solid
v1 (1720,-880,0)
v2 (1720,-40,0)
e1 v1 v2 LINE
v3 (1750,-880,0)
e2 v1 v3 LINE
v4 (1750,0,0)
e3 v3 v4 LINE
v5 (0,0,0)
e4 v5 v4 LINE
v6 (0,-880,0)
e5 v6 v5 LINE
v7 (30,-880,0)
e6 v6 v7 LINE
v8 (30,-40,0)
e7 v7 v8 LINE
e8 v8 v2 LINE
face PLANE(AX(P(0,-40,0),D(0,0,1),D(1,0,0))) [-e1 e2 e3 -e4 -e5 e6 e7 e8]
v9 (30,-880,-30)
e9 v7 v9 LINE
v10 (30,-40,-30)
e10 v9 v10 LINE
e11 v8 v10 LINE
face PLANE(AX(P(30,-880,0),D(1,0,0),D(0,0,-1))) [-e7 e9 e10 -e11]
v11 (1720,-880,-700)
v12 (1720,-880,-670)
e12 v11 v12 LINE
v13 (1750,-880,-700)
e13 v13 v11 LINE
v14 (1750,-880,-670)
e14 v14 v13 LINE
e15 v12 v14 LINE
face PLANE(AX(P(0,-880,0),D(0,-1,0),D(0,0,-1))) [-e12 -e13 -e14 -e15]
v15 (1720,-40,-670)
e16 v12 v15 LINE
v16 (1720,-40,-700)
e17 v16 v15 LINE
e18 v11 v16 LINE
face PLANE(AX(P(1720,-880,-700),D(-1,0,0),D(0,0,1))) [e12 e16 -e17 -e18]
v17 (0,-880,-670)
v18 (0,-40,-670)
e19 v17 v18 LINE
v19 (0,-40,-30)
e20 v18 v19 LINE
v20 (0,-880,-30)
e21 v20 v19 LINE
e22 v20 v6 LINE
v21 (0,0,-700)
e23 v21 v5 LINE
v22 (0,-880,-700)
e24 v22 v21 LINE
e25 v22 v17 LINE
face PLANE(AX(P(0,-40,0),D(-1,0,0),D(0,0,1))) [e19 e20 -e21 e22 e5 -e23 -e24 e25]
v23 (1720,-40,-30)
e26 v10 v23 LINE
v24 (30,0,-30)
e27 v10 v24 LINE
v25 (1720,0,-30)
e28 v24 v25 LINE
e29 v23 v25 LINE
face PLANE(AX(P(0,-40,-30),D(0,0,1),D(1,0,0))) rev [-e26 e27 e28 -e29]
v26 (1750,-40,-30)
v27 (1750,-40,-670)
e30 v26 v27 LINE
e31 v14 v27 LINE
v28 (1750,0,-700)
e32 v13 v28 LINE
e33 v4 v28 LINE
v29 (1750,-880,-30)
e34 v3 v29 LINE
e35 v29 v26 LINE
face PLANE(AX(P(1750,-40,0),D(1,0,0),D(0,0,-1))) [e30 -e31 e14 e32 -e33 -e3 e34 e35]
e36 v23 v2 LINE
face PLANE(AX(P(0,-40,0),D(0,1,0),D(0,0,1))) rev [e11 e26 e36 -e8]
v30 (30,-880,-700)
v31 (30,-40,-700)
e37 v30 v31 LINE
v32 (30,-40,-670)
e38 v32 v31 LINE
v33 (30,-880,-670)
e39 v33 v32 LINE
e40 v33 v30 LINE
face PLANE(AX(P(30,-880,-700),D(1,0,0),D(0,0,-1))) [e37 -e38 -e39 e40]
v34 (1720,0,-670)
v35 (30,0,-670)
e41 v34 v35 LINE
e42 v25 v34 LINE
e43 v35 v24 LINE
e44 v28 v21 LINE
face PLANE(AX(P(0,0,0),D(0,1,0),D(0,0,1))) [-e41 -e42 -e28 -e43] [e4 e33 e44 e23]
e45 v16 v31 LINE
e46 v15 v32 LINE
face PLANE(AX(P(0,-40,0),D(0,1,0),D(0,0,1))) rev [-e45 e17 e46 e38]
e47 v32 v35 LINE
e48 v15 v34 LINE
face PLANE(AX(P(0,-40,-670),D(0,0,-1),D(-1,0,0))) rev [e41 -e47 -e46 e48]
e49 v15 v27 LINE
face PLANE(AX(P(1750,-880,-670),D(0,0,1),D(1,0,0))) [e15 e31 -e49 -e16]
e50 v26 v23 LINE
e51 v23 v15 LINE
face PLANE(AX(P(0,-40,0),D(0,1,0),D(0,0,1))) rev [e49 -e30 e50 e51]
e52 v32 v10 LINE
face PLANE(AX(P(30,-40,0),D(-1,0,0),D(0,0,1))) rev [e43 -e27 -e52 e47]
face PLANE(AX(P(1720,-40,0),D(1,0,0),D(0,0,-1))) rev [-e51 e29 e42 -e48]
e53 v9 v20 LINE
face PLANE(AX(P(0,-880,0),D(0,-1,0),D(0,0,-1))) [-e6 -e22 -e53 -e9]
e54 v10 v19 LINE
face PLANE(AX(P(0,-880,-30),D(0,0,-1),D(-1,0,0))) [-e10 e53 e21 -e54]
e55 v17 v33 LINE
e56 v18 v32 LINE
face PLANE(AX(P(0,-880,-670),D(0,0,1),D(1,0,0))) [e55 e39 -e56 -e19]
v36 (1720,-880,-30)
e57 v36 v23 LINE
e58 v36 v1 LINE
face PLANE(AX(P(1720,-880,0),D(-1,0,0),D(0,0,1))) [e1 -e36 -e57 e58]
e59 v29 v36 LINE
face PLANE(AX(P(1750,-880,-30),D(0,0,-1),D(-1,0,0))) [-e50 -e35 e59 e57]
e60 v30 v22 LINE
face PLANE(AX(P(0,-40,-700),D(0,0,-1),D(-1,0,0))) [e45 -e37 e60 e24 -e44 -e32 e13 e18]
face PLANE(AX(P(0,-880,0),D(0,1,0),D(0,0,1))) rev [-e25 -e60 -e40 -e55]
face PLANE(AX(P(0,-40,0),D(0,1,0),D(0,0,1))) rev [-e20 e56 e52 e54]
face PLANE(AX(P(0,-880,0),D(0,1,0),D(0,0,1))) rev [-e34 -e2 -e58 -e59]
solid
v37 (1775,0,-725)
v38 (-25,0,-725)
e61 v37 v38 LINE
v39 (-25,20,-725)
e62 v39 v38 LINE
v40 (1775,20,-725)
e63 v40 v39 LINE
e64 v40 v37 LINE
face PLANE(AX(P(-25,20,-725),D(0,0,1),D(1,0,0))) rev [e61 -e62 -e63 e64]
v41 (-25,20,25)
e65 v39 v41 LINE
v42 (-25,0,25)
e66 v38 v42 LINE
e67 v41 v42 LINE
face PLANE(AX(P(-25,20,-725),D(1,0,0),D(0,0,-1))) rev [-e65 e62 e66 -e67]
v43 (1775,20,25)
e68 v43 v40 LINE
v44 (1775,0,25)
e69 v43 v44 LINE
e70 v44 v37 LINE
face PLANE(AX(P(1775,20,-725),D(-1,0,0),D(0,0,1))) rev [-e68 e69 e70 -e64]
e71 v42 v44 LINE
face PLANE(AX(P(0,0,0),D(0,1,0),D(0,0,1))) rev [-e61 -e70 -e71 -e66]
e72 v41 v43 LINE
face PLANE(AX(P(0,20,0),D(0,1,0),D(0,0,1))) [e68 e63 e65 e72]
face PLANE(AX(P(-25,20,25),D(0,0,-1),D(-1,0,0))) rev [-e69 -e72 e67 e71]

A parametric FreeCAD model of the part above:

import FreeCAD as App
import Part
import Sketcher
from FreeCAD import Vector

doc = App.newDocument("Part")
body = doc.addObject("PartDesign::Body", "Body")

sketch1 = body.newObject("Sketcher::SketchObject", "Sketch")
sketch1.AttachmentSupport = (doc.getObject("XZ_Plane"), [""])
sketch1.MapMode = "FlatFace"
sketch1.addGeometry(Part.LineSegment(Vector(0, -700, 0), Vector(0, 0, 0)), False)
sketch1.addGeometry(Part.LineSegment(Vector(0, 0, 0), Vector(1750, 0, 0)), False)
sketch1.addGeometry(Part.LineSegment(Vector(1750, 0, 0), Vector(1750, -700, 0)), False)
sketch1.addGeometry(Part.LineSegment(Vector(1750, -700, 0), Vector(0, -700, 0)), False)
sketch1.addGeometry(Part.LineSegment(Vector(1720, -30, 0), Vector(30, -30, 0)), False)
sketch1.addGeometry(Part.LineSegment(Vector(30, -30, 0), Vector(30, -670, 0)), False)
sketch1.addGeometry(Part.LineSegment(Vector(30, -670, 0), Vector(1720, -670, 0)), False)
sketch1.addGeometry(Part.LineSegment(Vector(1720, -670, 0), Vector(1720, -30, 0)), False)
sketch1.addConstraint(Sketcher.Constraint("Coincident", 0, 2, 1, 1))
sketch1.addConstraint(Sketcher.Constraint("Coincident", 1, 2, 2, 1))
sketch1.addConstraint(Sketcher.Constraint("Coincident", 2, 2, 3, 1))
sketch1.addConstraint(Sketcher.Constraint("Coincident", 3, 2, 0, 1))
sketch1.addConstraint(Sketcher.Constraint("Coincident", 4, 2, 5, 1))
sketch1.addConstraint(Sketcher.Constraint("Coincident", 5, 2, 6, 1))
sketch1.addConstraint(Sketcher.Constraint("Coincident", 6, 2, 7, 1))
sketch1.addConstraint(Sketcher.Constraint("Coincident", 7, 2, 4, 1))
sketch1.addConstraint(Sketcher.Constraint("Vertical", 0))
sketch1.addConstraint(Sketcher.Constraint("Horizontal", 1))
sketch1.addConstraint(Sketcher.Constraint("Vertical", 2))
sketch1.addConstraint(Sketcher.Constraint("Horizontal", 3))
sketch1.addConstraint(Sketcher.Constraint("Horizontal", 4))
sketch1.addConstraint(Sketcher.Constraint("Vertical", 5))
sketch1.addConstraint(Sketcher.Constraint("Horizontal", 6))
sketch1.addConstraint(Sketcher.Constraint("Vertical", 7))
sketch1.addConstraint(Sketcher.Constraint("Coincident", 0, 2, -1, 1))
sketch1.addConstraint(Sketcher.Constraint("DistanceX", 1, 1, 1, 2, 1750.0))
sketch1.addConstraint(Sketcher.Constraint("DistanceX", 4, 2, 4, 1, 1690.0))
sketch1.addConstraint(Sketcher.Constraint("DistanceY", 0, 1, 0, 2, 700.0))
sketch1.addConstraint(Sketcher.Constraint("DistanceY", 5, 2, 5, 1, 640.0))
sketch1.addConstraint(Sketcher.Constraint("DistanceX", -1, 1, 4, 2, 30.0))
sketch1.addConstraint(Sketcher.Constraint("DistanceY", 4, 2, -1, 1, 30.0))
pad1 = body.newObject("PartDesign::Pad", "Pad")
pad1.Profile = sketch1
pad1.Length = 40

sketch2 = body.newObject("Sketcher::SketchObject", "Sketch001")
sketch2.AttachmentSupport = (doc.getObject("XZ_Plane"), [""])
sketch2.MapMode = "FlatFace"
sketch2.addGeometry(Part.LineSegment(Vector(0, -700, 0), Vector(0, -670, 0)), False)
sketch2.addGeometry(Part.LineSegment(Vector(0, -670, 0), Vector(30, -670, 0)), False)
sketch2.addGeometry(Part.LineSegment(Vector(30, -670, 0), Vector(30, -700, 0)), False)
sketch2.addGeometry(Part.LineSegment(Vector(30, -700, 0), Vector(0, -700, 0)), False)
sketch2.addGeometry(Part.LineSegment(Vector(0, -30, 0), Vector(0, 0, 0)), False)
sketch2.addGeometry(Part.LineSegment(Vector(0, 0, 0), Vector(30, 0, 0)), False)
sketch2.addGeometry(Part.LineSegment(Vector(30, 0, 0), Vector(30, -30, 0)), False)
sketch2.addGeometry(Part.LineSegment(Vector(30, -30, 0), Vector(0, -30, 0)), False)
sketch2.addGeometry(Part.LineSegment(Vector(1720, -30, 0), Vector(1720, 0, 0)), False)
sketch2.addGeometry(Part.LineSegment(Vector(1720, 0, 0), Vector(1750, 0, 0)), False)
sketch2.addGeometry(Part.LineSegment(Vector(1750, 0, 0), Vector(1750, -30, 0)), False)
sketch2.addGeometry(Part.LineSegment(Vector(1750, -30, 0), Vector(1720, -30, 0)), False)
sketch2.addGeometry(Part.LineSegment(Vector(1720, -700, 0), Vector(1720, -670, 0)), False)
sketch2.addGeometry(Part.LineSegment(Vector(1720, -670, 0), Vector(1750, -670, 0)), False)
sketch2.addGeometry(Part.LineSegment(Vector(1750, -670, 0), Vector(1750, -700, 0)), False)
sketch2.addGeometry(Part.LineSegment(Vector(1750, -700, 0), Vector(1720, -700, 0)), False)
sketch2.addConstraint(Sketcher.Constraint("Coincident", 0, 2, 1, 1))
sketch2.addConstraint(Sketcher.Constraint("Coincident", 1, 2, 2, 1))
sketch2.addConstraint(Sketcher.Constraint("Coincident", 2, 2, 3, 1))
sketch2.addConstraint(Sketcher.Constraint("Coincident", 3, 2, 0, 1))
sketch2.addConstraint(Sketcher.Constraint("Coincident", 4, 2, 5, 1))
sketch2.addConstraint(Sketcher.Constraint("Coincident", 5, 2, 6, 1))
sketch2.addConstraint(Sketcher.Constraint("Coincident", 6, 2, 7, 1))
sketch2.addConstraint(Sketcher.Constraint("Coincident", 7, 2, 4, 1))
sketch2.addConstraint(Sketcher.Constraint("Coincident", 8, 2, 9, 1))
sketch2.addConstraint(Sketcher.Constraint("Coincident", 9, 2, 10, 1))
sketch2.addConstraint(Sketcher.Constraint("Coincident", 10, 2, 11, 1))
sketch2.addConstraint(Sketcher.Constraint("Coincident", 11, 2, 8, 1))
sketch2.addConstraint(Sketcher.Constraint("Coincident", 12, 2, 13, 1))
sketch2.addConstraint(Sketcher.Constraint("Coincident", 13, 2, 14, 1))
sketch2.addConstraint(Sketcher.Constraint("Coincident", 14, 2, 15, 1))
sketch2.addConstraint(Sketcher.Constraint("Coincident", 15, 2, 12, 1))
sketch2.addConstraint(Sketcher.Constraint("Vertical", 0))
sketch2.addConstraint(Sketcher.Constraint("Horizontal", 1))
sketch2.addConstraint(Sketcher.Constraint("Vertical", 2))
sketch2.addConstraint(Sketcher.Constraint("Horizontal", 3))
sketch2.addConstraint(Sketcher.Constraint("Vertical", 4))
sketch2.addConstraint(Sketcher.Constraint("Horizontal", 5))
sketch2.addConstraint(Sketcher.Constraint("Vertical", 6))
sketch2.addConstraint(Sketcher.Constraint("Horizontal", 7))
sketch2.addConstraint(Sketcher.Constraint("Vertical", 8))
sketch2.addConstraint(Sketcher.Constraint("Horizontal", 9))
sketch2.addConstraint(Sketcher.Constraint("Vertical", 10))
sketch2.addConstraint(Sketcher.Constraint("Horizontal", 11))
sketch2.addConstraint(Sketcher.Constraint("Vertical", 12))
sketch2.addConstraint(Sketcher.Constraint("Horizontal", 13))
sketch2.addConstraint(Sketcher.Constraint("Vertical", 14))
sketch2.addConstraint(Sketcher.Constraint("Horizontal", 15))
sketch2.addConstraint(Sketcher.Constraint("Coincident", 4, 2, -1, 1))
sketch2.addConstraint(Sketcher.Constraint("PointOnObject", 0, 2, -2))
sketch2.addConstraint(Sketcher.Constraint("PointOnObject", 8, 2, -1))
sketch2.addConstraint(Sketcher.Constraint("Horizontal", 7, 2, 10, 2))
sketch2.addConstraint(Sketcher.Constraint("Horizontal", 1, 2, 12, 2))
sketch2.addConstraint(Sketcher.Constraint("Horizontal", 3, 2, 14, 2))
sketch2.addConstraint(Sketcher.Constraint("Vertical", 2, 2, 5, 2))
sketch2.addConstraint(Sketcher.Constraint("Vertical", 11, 2, 12, 2))
sketch2.addConstraint(Sketcher.Constraint("Vertical", 10, 2, 13, 2))
sketch2.addConstraint(Sketcher.Constraint("Equal", 7, 9))
sketch2.addConstraint(Sketcher.Constraint("Equal", 15, 0))
sketch2.addConstraint(Sketcher.Constraint("Equal", 2, 4))
sketch2.addConstraint(Sketcher.Constraint("DistanceX", 1, 1, 1, 2, 30.0))
sketch2.addConstraint(Sketcher.Constraint("DistanceY", 0, 2, -1, 1, 670.0))
sketch2.addConstraint(Sketcher.Constraint("DistanceX", -1, 1, 8, 2, 1720.0))
pad2 = body.newObject("PartDesign::Pad", "Pad001")
pad2.Profile = sketch2
pad2.Length = 880
body2 = doc.addObject("PartDesign::Body", "Body001")

sketch3 = body2.newObject("Sketcher::SketchObject", "Sketch002")
sketch3.AttachmentSupport = (doc.getObject("XZ_Plane001"), [""])
sketch3.MapMode = "FlatFace"
sketch3.addGeometry(Part.LineSegment(Vector(-25, -725, 0), Vector(-25, 25, 0)), False)
sketch3.addGeometry(Part.LineSegment(Vector(-25, 25, 0), Vector(1775, 25, 0)), False)
sketch3.addGeometry(Part.LineSegment(Vector(1775, 25, 0), Vector(1775, -725, 0)), False)
sketch3.addGeometry(Part.LineSegment(Vector(1775, -725, 0), Vector(-25, -725, 0)), False)
sketch3.addConstraint(Sketcher.Constraint("Coincident", 0, 2, 1, 1))
sketch3.addConstraint(Sketcher.Constraint("Coincident", 1, 2, 2, 1))
sketch3.addConstraint(Sketcher.Constraint("Coincident", 2, 2, 3, 1))
sketch3.addConstraint(Sketcher.Constraint("Coincident", 3, 2, 0, 1))
sketch3.addConstraint(Sketcher.Constraint("Vertical", 0))
sketch3.addConstraint(Sketcher.Constraint("Horizontal", 1))
sketch3.addConstraint(Sketcher.Constraint("Vertical", 2))
sketch3.addConstraint(Sketcher.Constraint("Horizontal", 3))
sketch3.addConstraint(Sketcher.Constraint("DistanceX", 1, 1, 1, 2, 1800.0))
sketch3.addConstraint(Sketcher.Constraint("DistanceY", 0, 1, 0, 2, 750.0))
sketch3.addConstraint(Sketcher.Constraint("DistanceX", 0, 2, -1, 1, 25.0))
sketch3.addConstraint(Sketcher.Constraint("DistanceY", -1, 1, 0, 2, 25.0))
pad3 = body2.newObject("PartDesign::Pad", "Pad002")
pad3.Profile = sketch3
pad3.Length = 20
pad3.Reversed = True

doc.recompute()
